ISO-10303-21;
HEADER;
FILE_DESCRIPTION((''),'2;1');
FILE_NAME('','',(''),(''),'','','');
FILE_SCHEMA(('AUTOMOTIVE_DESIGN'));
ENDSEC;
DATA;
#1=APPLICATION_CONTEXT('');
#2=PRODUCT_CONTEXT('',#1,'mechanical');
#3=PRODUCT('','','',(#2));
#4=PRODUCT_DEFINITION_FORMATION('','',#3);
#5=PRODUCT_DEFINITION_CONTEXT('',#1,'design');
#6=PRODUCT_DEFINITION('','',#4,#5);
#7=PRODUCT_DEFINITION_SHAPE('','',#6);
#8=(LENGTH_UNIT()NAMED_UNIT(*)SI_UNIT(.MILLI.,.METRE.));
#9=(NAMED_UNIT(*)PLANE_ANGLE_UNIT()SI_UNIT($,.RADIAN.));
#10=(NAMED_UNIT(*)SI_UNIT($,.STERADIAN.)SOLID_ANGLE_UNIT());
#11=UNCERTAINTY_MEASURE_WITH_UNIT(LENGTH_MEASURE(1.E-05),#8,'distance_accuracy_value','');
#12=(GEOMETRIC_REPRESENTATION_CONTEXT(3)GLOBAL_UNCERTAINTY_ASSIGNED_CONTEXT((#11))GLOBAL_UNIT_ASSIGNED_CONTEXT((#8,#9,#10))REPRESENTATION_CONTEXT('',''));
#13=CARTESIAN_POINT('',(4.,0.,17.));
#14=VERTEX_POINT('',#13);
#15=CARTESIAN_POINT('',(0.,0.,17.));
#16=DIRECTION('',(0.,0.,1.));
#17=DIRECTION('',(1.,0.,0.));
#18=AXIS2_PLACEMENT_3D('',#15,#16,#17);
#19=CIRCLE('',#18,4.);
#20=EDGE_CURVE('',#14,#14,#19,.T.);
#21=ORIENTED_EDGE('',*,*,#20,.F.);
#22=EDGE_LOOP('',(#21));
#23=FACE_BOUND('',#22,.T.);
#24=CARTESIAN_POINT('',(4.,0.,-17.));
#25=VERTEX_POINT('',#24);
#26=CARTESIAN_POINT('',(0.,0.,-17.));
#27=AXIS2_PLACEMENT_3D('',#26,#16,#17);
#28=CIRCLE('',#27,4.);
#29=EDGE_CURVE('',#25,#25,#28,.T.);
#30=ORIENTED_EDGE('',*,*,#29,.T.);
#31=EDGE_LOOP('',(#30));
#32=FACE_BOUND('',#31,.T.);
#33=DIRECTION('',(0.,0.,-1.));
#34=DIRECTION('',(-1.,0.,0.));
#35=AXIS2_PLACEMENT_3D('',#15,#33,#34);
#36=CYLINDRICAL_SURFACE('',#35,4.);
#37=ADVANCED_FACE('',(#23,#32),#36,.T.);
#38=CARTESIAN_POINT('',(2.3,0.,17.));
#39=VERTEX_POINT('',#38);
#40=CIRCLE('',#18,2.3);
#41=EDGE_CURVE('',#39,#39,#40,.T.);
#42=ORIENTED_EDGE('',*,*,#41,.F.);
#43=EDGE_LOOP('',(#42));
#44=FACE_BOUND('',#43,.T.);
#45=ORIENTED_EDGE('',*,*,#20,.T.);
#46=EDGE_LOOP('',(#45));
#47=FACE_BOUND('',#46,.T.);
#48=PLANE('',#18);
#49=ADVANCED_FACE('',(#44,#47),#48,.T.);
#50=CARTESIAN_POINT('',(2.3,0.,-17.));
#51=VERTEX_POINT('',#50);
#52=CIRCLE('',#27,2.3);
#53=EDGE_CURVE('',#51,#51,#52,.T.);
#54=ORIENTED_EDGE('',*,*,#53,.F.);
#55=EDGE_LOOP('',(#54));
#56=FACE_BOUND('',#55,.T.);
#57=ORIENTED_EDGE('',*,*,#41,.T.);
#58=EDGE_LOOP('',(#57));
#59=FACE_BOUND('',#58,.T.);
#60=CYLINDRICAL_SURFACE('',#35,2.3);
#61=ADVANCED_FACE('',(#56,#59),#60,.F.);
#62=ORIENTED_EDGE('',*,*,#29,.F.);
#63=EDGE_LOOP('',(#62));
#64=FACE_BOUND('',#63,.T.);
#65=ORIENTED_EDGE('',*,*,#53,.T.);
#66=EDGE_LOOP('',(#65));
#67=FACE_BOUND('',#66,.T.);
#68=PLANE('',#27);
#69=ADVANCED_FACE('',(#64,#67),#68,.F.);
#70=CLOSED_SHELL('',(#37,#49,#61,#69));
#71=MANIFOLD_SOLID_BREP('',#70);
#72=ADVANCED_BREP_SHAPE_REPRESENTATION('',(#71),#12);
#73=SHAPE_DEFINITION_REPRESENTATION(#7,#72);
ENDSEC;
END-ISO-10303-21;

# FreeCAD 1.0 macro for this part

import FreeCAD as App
import Part
import Sketcher
from FreeCAD import Vector

doc = App.newDocument("Part")
body = doc.addObject("PartDesign::Body", "Body")

# Sketch on XY plane
sketch1 = doc.addObject("Sketcher::SketchObject", "Sketch")
body.addObject(sketch1)
sketch1.AttachmentSupport = (doc.XY_Plane, [""])
sketch1.MapMode = "FlatFace"
sketch1.addGeometry([
    Part.Circle(Vector(0, 0, 0), Vector(0, 0, 1), 4),
    Part.Circle(Vector(0, 0, 0), Vector(0, 0, 1), 2.3),
], False)
sketch1.addConstraint([
    Sketcher.Constraint("Coincident", 0, 3, -1, 1),
    Sketcher.Constraint("Coincident", 1, 3, -1, 1),
    Sketcher.Constraint("Diameter", 0, 8.0),
    Sketcher.Constraint("Diameter", 1, 4.6),
])
pad1 = doc.addObject("PartDesign::Pad", "Pad")
body.addObject(pad1)
pad1.Profile = sketch1
pad1.Length = 34
pad1.Midplane = True

doc.recompute()
